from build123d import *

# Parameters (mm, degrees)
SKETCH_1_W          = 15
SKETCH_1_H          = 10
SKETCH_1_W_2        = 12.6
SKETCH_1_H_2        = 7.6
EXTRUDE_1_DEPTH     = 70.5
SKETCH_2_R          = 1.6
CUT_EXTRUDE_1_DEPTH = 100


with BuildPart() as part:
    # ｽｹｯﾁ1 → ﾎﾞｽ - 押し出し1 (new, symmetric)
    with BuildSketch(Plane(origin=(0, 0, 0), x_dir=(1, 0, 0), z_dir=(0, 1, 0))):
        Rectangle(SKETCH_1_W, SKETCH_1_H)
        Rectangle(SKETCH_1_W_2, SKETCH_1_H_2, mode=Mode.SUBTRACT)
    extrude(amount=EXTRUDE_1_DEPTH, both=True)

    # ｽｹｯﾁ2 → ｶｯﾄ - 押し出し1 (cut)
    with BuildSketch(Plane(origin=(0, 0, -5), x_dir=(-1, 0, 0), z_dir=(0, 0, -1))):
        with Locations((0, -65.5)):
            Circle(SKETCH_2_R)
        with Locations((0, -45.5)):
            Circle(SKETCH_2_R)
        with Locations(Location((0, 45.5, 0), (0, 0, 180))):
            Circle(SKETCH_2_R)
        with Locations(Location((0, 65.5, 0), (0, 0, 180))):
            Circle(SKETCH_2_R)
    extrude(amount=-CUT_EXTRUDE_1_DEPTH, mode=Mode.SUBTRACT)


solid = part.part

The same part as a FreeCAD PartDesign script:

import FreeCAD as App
import Part
import Sketcher
Q = App.Units.Quantity

doc = App.newDocument("Part")
body = doc.addObject("PartDesign::Body", "Body")

sketch1 = body.newObject("Sketcher::SketchObject", "Sketch")
sketch1.AttachmentSupport = (doc.getObject("XZ_Plane"), [""])
sketch1.MapMode = "FlatFace"
sketch1.addGeometry([
    Part.LineSegment(App.Vector(-8, -5, 0), App.Vector(-8, 5, 0)),
    Part.LineSegment(App.Vector(-8, 5, 0), App.Vector(8, 5, 0)),
    Part.LineSegment(App.Vector(8, 5, 0), App.Vector(8, -5, 0)),
    Part.LineSegment(App.Vector(8, -5, 0), App.Vector(-8, -5, 0)),
    Part.LineSegment(App.Vector(6, 4, 0), App.Vector(-6, 4, 0)),
    Part.LineSegment(App.Vector(-6, 4, 0), App.Vector(-6, -4, 0)),
    Part.LineSegment(App.Vector(-6, -4, 0), App.Vector(6, -4, 0)),
    Part.LineSegment(App.Vector(6, -4, 0), App.Vector(6, 4, 0)),
], False)
sketch1.addConstraint([
    Sketcher.Constraint("Coincident", 0, 2, 1, 1),
    Sketcher.Constraint("Coincident", 1, 2, 2, 1),
    Sketcher.Constraint("Coincident", 2, 2, 3, 1),
    Sketcher.Constraint("Coincident", 3, 2, 0, 1),
    Sketcher.Constraint("Coincident", 4, 2, 5, 1),
    Sketcher.Constraint("Coincident", 5, 2, 6, 1),
    Sketcher.Constraint("Coincident", 6, 2, 7, 1),
    Sketcher.Constraint("Coincident", 7, 2, 4, 1),
    Sketcher.Constraint("Vertical", 0),
    Sketcher.Constraint("Horizontal", 1),
    Sketcher.Constraint("Vertical", 2),
    Sketcher.Constraint("Horizontal", 3),
    Sketcher.Constraint("Horizontal", 4),
    Sketcher.Constraint("Vertical", 5),
    Sketcher.Constraint("Horizontal", 6),
    Sketcher.Constraint("Vertical", 7),
    Sketcher.Constraint("Symmetric", 0, 2, 2, 2, -1, 1),
    Sketcher.Constraint("Symmetric", 4, 2, 6, 2, -1, 1),
    Sketcher.Constraint("DistanceX", 1, 1, 1, 2, Q("15 mm")),
    Sketcher.Constraint("DistanceY", 0, 1, 0, 2, Q("10 mm")),
    Sketcher.Constraint("DistanceX", 4, 2, 4, 1, Q("12.6 mm")),
    Sketcher.Constraint("DistanceY", 5, 2, 5, 1, Q("7.6 mm")),
])
pad1 = body.newObject("PartDesign::Pad", "Pad")
pad1.Profile = sketch1
pad1.Length = 141
pad1.Midplane = True

sketch2 = body.newObject("Sketcher::SketchObject", "Sketch001")
sketch2.AttachmentSupport = (doc.getObject("XY_Plane"), [""])
sketch2.MapMode = "FlatFace"
sketch2.AttachmentOffset = App.Placement(App.Vector(0, 0, -5), App.Rotation())
sketch2.addGeometry([
    Part.Circle(App.Vector(0, -65.5, 0), App.Vector(0, 0, 1), 1.6),
    Part.Circle(App.Vector(0, -45.5, 0), App.Vector(0, 0, 1), 1.6),
    Part.Circle(App.Vector(0, 45.5, 0), App.Vector(0, 0, 1), 1.6),
    Part.Circle(App.Vector(0, 65.5, 0), App.Vector(0, 0, 1), 1.6),
], False)
sketch2.addConstraint([
    Sketcher.Constraint("Equal", 0, 1),
    Sketcher.Constraint("Equal", 1, 2),
    Sketcher.Constraint("Equal", 2, 3),
    Sketcher.Constraint("Symmetric", 1, 3, 2, 3, -1, 1),
    Sketcher.Constraint("Symmetric", 0, 3, 3, 3, -1, 1),
    Sketcher.Constraint("PointOnObject", 0, 3, -2),
    Sketcher.Constraint("PointOnObject", 1, 3, -2),
    Sketcher.Constraint("Diameter", 0, Q("3.2 mm")),
    Sketcher.Constraint("DistanceY", 0, 3, 1, 3, Q("20 mm")),
    Sketcher.Constraint("DistanceY", 1, 3, 2, 3, Q("91 mm")),
])
pocket1 = body.newObject("PartDesign::Pocket", "Pocket")
pocket1.Profile = sketch2
pocket1.Length = 100
pocket1.Reversed = True

doc.recompute()
